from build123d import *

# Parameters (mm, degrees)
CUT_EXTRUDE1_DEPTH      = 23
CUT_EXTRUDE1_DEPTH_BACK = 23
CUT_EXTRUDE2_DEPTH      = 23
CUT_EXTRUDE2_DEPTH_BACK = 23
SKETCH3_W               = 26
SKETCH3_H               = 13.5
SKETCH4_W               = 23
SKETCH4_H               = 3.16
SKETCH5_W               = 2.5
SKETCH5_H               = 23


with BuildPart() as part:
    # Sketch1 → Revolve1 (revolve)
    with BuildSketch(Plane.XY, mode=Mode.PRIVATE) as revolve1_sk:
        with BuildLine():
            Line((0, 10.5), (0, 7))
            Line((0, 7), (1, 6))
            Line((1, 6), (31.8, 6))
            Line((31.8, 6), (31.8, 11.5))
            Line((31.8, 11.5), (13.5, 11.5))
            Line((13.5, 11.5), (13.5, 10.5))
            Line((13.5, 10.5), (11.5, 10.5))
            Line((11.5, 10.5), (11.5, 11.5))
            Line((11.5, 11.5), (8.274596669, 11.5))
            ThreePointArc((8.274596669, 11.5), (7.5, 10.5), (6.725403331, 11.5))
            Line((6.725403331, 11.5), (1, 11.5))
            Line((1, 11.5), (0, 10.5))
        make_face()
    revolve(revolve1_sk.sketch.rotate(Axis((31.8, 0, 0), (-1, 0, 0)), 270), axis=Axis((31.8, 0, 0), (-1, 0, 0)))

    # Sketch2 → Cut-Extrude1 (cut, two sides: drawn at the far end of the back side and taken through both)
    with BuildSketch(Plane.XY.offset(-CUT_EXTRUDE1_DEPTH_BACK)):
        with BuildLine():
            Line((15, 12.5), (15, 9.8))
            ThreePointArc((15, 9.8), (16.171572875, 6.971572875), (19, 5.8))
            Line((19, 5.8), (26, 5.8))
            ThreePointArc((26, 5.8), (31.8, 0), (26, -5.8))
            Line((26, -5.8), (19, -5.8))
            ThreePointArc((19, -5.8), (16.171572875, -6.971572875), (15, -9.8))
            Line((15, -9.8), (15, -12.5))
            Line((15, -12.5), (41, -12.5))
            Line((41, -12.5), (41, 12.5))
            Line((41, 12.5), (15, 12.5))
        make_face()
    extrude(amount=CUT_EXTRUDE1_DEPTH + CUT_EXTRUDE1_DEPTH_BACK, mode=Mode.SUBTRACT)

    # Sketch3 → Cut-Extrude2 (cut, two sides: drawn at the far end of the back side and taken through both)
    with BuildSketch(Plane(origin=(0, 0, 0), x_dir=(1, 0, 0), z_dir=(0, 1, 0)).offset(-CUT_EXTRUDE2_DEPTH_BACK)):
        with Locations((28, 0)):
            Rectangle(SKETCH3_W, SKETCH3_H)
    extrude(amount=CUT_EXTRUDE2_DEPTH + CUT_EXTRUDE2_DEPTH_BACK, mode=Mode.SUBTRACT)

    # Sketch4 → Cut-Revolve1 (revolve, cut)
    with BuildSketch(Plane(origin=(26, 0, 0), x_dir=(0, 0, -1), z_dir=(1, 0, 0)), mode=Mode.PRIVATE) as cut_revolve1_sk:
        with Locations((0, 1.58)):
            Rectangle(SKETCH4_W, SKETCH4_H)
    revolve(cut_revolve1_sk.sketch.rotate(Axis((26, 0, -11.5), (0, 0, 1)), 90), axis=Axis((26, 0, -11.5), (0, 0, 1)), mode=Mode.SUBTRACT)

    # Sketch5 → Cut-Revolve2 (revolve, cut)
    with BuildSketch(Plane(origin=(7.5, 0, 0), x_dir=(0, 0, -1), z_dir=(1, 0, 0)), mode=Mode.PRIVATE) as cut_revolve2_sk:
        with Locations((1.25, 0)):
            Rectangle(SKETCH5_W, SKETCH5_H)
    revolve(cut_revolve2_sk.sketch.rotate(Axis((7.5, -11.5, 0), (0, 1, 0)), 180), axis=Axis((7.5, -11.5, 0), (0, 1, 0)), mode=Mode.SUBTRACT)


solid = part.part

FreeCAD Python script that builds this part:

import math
import FreeCAD as App
import Part
import Sketcher

V = App.Vector


def add_polygon(sketch, points):
    """Adds a closed chain of lines whose ends are joined by coincident constraints."""
    first, n = sketch.GeometryCount, len(points)
    for a, b in zip(points, points[1:] + points[:1]):
        sketch.addGeometry(Part.LineSegment(App.Vector(*a, 0), App.Vector(*b, 0)), False)
    for i in range(n):
        sketch.addConstraint(Sketcher.Constraint("Coincident", first + i, 2, first + (i + 1) % n, 1))

doc = App.newDocument("Part")
params = doc.addObject("Spreadsheet::Sheet", "Params")
for row, (alias, value) in enumerate([
    ("sketch1_radius", "0.8 mm"),
    ("sketch1_width", "2 mm"),
    ("sketch1_height", "1 mm"),
    ("sketch1_width2", "30.8 mm"),
    ("sketch1_width3", "18.3 mm"),
    ("revolution_angle", "360 deg"),
    ("sketch2_radius", "4 mm"),
    ("sketch2_radius2", "5.8 mm"),
    ("sketch2_width", "7 mm"),
    ("sketch2_width2", "26 mm"),
    ("sketch2_height", "25 mm"),
    ("sketch3_width", "26 mm"),
    ("sketch3_height", "13.5 mm"),
    ("sketch4_height", "23 mm"),
    ("sketch4_width", "3.16 mm"),
    ("groove_angle", "360 deg"),
    ("sketch5_width", "23 mm"),
    ("sketch5_height", "2.5 mm"),
    ("groove2_angle", "360 deg"),
], start=1):
    params.set(f"A{row}", alias)
    params.set(f"B{row}", "=" + value)
    params.setAlias(f"B{row}", alias)

body = doc.addObject("PartDesign::Body", "Body")

# Sketch on XY plane
sketch1 = body.newObject("Sketcher::SketchObject", "Sketch")
sketch1.AttachmentSupport = (doc.getObject("XY_Plane"), [""])
sketch1.MapMode = "FlatFace"
sketch1.addGeometry([
    Part.LineSegment(V(0, 10.5, 0), V(0, 7, 0)),  # 0
    Part.LineSegment(V(0, 7, 0), V(1, 6, 0)),  # 1
    Part.LineSegment(V(1, 6, 0), V(31.8, 6, 0)),  # 2
    Part.LineSegment(V(31.8, 6, 0), V(31.8, 11.5, 0)),  # 3
    Part.LineSegment(V(31.8, 11.5, 0), V(13.5, 11.5, 0)),  # 4
    Part.LineSegment(V(13.5, 11.5, 0), V(13.5, 10.5, 0)),  # 5
    Part.LineSegment(V(13.5, 10.5, 0), V(11.5, 10.5, 0)),  # 6
    Part.LineSegment(V(11.5, 10.5, 0), V(11.5, 11.5, 0)),  # 7
    Part.LineSegment(V(11.5, 11.5, 0), V(8.3, 11.5, 0)),  # 8
    Part.ArcOfCircle(Part.Circle(V(7.5, 11.3, 0), V(0, 0, 1), 0.8), math.radians(166), math.radians(374)),  # 9
    Part.LineSegment(V(6.7, 11.5, 0), V(1, 11.5, 0)),  # 10
    Part.LineSegment(V(1, 11.5, 0), V(0, 10.5, 0)),  # 11
], False)
sketch1.addConstraint([
    Sketcher.Constraint("Coincident", 0, 2, 1, 1),
    Sketcher.Constraint("Coincident", 1, 2, 2, 1),
    Sketcher.Constraint("Coincident", 2, 2, 3, 1),
    Sketcher.Constraint("Coincident", 3, 2, 4, 1),
    Sketcher.Constraint("Coincident", 4, 2, 5, 1),
    Sketcher.Constraint("Coincident", 5, 2, 6, 1),
    Sketcher.Constraint("Coincident", 6, 2, 7, 1),
    Sketcher.Constraint("Coincident", 7, 2, 8, 1),
    Sketcher.Constraint("Coincident", 8, 2, 9, 2),
    Sketcher.Constraint("Coincident", 9, 1, 10, 1),
    Sketcher.Constraint("Coincident", 10, 2, 11, 1),
    Sketcher.Constraint("Coincident", 11, 2, 0, 1),
    Sketcher.Constraint("Vertical", 0),
    Sketcher.Constraint("Horizontal", 2),
    Sketcher.Constraint("Vertical", 3),
    Sketcher.Constraint("Horizontal", 4),
    Sketcher.Constraint("Vertical", 5),
    Sketcher.Constraint("Horizontal", 6),
    Sketcher.Constraint("Vertical", 7),
    Sketcher.Constraint("Horizontal", 8),
    Sketcher.Constraint("Horizontal", 10),
    Sketcher.Constraint("PointOnObject", 0, 2, -2),
    Sketcher.Constraint("Perpendicular", 1, 11),
    Sketcher.Constraint("Horizontal", 4, 2, 7, 2),
    Sketcher.Constraint("Horizontal", 8, 2, 9, 1),
    Sketcher.Constraint("Horizontal", 6, 2, 11, 2),
    Sketcher.Constraint("Vertical", 1, 2, 10, 2),
    Sketcher.Constraint("Equal", 1, 11),
    Sketcher.Constraint("Radius", 9, 0.8),
    Sketcher.Constraint("DistanceX", 6, 2, 6, 1, 2.0),
    Sketcher.Constraint("DistanceY", 5, 2, 5, 1, 1.0),
    Sketcher.Constraint("DistanceX", 2, 1, 2, 2, 30.8),
    Sketcher.Constraint("DistanceX", 4, 2, 4, 1, 18.3),
    Sketcher.Constraint("DistanceY", 0, 2, 0, 1, 3.5),
    Sketcher.Constraint("DistanceY", -1, 1, 0, 2, 7.0),
    Sketcher.Constraint("DistanceX", 9, 3, 4, 2, 6.0),
    Sketcher.Constraint("DistanceY", -1, 1, 9, 3, 11.3),
])
sketch1.setExpression("Constraints[28]", "Params.sketch1_radius")
sketch1.setExpression("Constraints[29]", "Params.sketch1_width")
sketch1.setExpression("Constraints[30]", "Params.sketch1_height")
sketch1.setExpression("Constraints[31]", "Params.sketch1_width2")
sketch1.setExpression("Constraints[32]", "Params.sketch1_width3")
revolution = body.newObject("PartDesign::Revolution", "Revolution")
revolution.Profile = sketch1
revolution.ReferenceAxis = (sketch1, ["H_Axis"])
revolution.setExpression("Angle", "Params.revolution_angle")

# Sketch on XY plane
sketch2 = body.newObject("Sketcher::SketchObject", "Sketch001")
sketch2.AttachmentSupport = (doc.getObject("XY_Plane"), [""])
sketch2.MapMode = "FlatFace"
sketch2.addGeometry([
    Part.LineSegment(V(15, 12.5, 0), V(15, 9.8, 0)),  # 0
    Part.ArcOfCircle(Part.Circle(V(19, 9.8, 0), V(0, 0, 1), 4), math.radians(180), math.radians(270)),  # 1
    Part.LineSegment(V(19, 5.8, 0), V(26, 5.8, 0)),  # 2
    Part.ArcOfCircle(Part.Circle(V(26, 0, 0), V(0, 0, 1), 5.8), math.radians(-90), math.radians(90)),  # 3
    Part.LineSegment(V(26, -5.8, 0), V(19, -5.8, 0)),  # 4
    Part.ArcOfCircle(Part.Circle(V(19, -9.8, 0), V(0, 0, 1), 4), math.radians(90), math.radians(180)),  # 5
    Part.LineSegment(V(15, -9.8, 0), V(15, -12.5, 0)),  # 6
    Part.LineSegment(V(15, -12.5, 0), V(41, -12.5, 0)),  # 7
    Part.LineSegment(V(41, -12.5, 0), V(41, 12.5, 0)),  # 8
    Part.LineSegment(V(41, 12.5, 0), V(15, 12.5, 0)),  # 9
], False)
sketch2.addConstraint([
    Sketcher.Constraint("Tangent", 0, 2, 1, 1),
    Sketcher.Constraint("Tangent", 1, 2, 2, 1),
    Sketcher.Constraint("Tangent", 2, 2, 3, 2),
    Sketcher.Constraint("Tangent", 3, 1, 4, 1),
    Sketcher.Constraint("Tangent", 4, 2, 5, 1),
    Sketcher.Constraint("Tangent", 5, 2, 6, 1),
    Sketcher.Constraint("Coincident", 6, 2, 7, 1),
    Sketcher.Constraint("Coincident", 7, 2, 8, 1),
    Sketcher.Constraint("Coincident", 8, 2, 9, 1),
    Sketcher.Constraint("Coincident", 9, 2, 0, 1),
    Sketcher.Constraint("Vertical", 0),
    Sketcher.Constraint("Horizontal", 2),
    Sketcher.Constraint("Horizontal", 4),
    Sketcher.Constraint("Vertical", 6),
    Sketcher.Constraint("Horizontal", 7),
    Sketcher.Constraint("Vertical", 8),
    Sketcher.Constraint("Horizontal", 9),
    Sketcher.Constraint("Equal", 1, 5),
    Sketcher.Constraint("Symmetric", 1, 3, 5, 3, -1),
    Sketcher.Constraint("Equal", 0, 6),
    Sketcher.Constraint("Radius", 1, 4.0),
    Sketcher.Constraint("Radius", 3, 5.8),
    Sketcher.Constraint("DistanceX", 2, 1, 2, 2, 7.0),
    Sketcher.Constraint("DistanceX", 7, 1, 7, 2, 26.0),
    Sketcher.Constraint("DistanceY", 8, 1, 8, 2, 25.0),
    Sketcher.Constraint("DistanceX", -1, 1, 1, 3, 19.0),
])
sketch2.setExpression("Constraints[20]", "Params.sketch2_radius")
sketch2.setExpression("Constraints[21]", "Params.sketch2_radius2")
sketch2.setExpression("Constraints[22]", "Params.sketch2_width")
sketch2.setExpression("Constraints[23]", "Params.sketch2_width2")
sketch2.setExpression("Constraints[24]", "Params.sketch2_height")
pocket1 = body.newObject("PartDesign::Pocket", "Pocket")
pocket1.Profile = sketch2
pocket1.Type = "ThroughAll"
pocket1.Midplane = True

# Sketch on XZ plane
sketch3 = body.newObject("Sketcher::SketchObject", "Sketch002")
sketch3.AttachmentSupport = (doc.getObject("XZ_Plane"), [""])
sketch3.MapMode = "FlatFace"
add_polygon(sketch3, [(15, -7), (15, 7), (41, 7), (41, -7)])  # lines 0-3
sketch3.addConstraint([
    Sketcher.Constraint("Vertical", 0),
    Sketcher.Constraint("Horizontal", 1),
    Sketcher.Constraint("Vertical", 2),
    Sketcher.Constraint("Horizontal", 3),
    Sketcher.Constraint("DistanceX", 1, 1, 1, 2, 26.0),
    Sketcher.Constraint("DistanceY", 0, 1, 0, 2, 13.5),
    Sketcher.Constraint("DistanceX", -1, 1, 0, 2, 15.0),
    Sketcher.Constraint("DistanceY", -1, 1, 0, 2, 6.75),
])
sketch3.setExpression("Constraints[8]", "Params.sketch3_width")
sketch3.setExpression("Constraints[9]", "Params.sketch3_height")
pocket2 = body.newObject("PartDesign::Pocket", "Pocket001")
pocket2.Profile = sketch3
pocket2.Type = "ThroughAll"
pocket2.Midplane = True

# Sketch on YZ plane
sketch4 = body.newObject("Sketcher::SketchObject", "Sketch003")
sketch4.AttachmentSupport = (doc.getObject("YZ_Plane"), [""])
sketch4.MapMode = "FlatFace"
sketch4.AttachmentOffset = App.Placement(V(0, 0, 26), App.Rotation())
add_polygon(sketch4, [(3.2, 11.5), (0, 11.5), (0, -11.5), (3.2, -11.5)])  # lines 0-3
sketch4.addConstraint([
    Sketcher.Constraint("Horizontal", 0),
    Sketcher.Constraint("Vertical", 1),
    Sketcher.Constraint("Horizontal", 2),
    Sketcher.Constraint("Vertical", 3),
    Sketcher.Constraint("Symmetric", 0, 2, 1, 2, -1, 1),
    Sketcher.Constraint("DistanceY", 1, 2, 1, 1, 23.0),
    Sketcher.Constraint("DistanceX", 0, 2, 0, 1, 3.16),
])
sketch4.setExpression("Constraints[9]", "Params.sketch4_height")
sketch4.setExpression("Constraints[10]", "Params.sketch4_width")
groove = body.newObject("PartDesign::Groove", "Groove")
groove.Profile = sketch4
groove.ReferenceAxis = (sketch4, ["V_Axis"])
groove.setExpression("Angle", "Params.groove_angle")

# Sketch on YZ plane
sketch5 = body.newObject("Sketcher::SketchObject", "Sketch004")
sketch5.AttachmentSupport = (doc.getObject("YZ_Plane"), [""])
sketch5.MapMode = "FlatFace"
sketch5.AttachmentOffset = App.Placement(V(0, 0, 7.5), App.Rotation())
add_polygon(sketch5, [(11.5, 0), (-11.5, 0), (-11.5, -2.5), (11.5, -2.5)])  # lines 0-3
sketch5.addConstraint([
    Sketcher.Constraint("Horizontal", 0),
    Sketcher.Constraint("Vertical", 1),
    Sketcher.Constraint("Horizontal", 2),
    Sketcher.Constraint("Vertical", 3),
    Sketcher.Constraint("Symmetric", 0, 2, 3, 2, -1, 1),
    Sketcher.Constraint("DistanceX", 0, 2, 0, 1, 23.0),
    Sketcher.Constraint("DistanceY", 1, 2, 1, 1, 2.5),
])
sketch5.setExpression("Constraints[9]", "Params.sketch5_width")
sketch5.setExpression("Constraints[10]", "Params.sketch5_height")
groove2 = body.newObject("PartDesign::Groove", "Groove001")
groove2.Profile = sketch5
groove2.ReferenceAxis = (sketch5, ["H_Axis"])
groove2.setExpression("Angle", "Params.groove2_angle")

doc.recompute()
